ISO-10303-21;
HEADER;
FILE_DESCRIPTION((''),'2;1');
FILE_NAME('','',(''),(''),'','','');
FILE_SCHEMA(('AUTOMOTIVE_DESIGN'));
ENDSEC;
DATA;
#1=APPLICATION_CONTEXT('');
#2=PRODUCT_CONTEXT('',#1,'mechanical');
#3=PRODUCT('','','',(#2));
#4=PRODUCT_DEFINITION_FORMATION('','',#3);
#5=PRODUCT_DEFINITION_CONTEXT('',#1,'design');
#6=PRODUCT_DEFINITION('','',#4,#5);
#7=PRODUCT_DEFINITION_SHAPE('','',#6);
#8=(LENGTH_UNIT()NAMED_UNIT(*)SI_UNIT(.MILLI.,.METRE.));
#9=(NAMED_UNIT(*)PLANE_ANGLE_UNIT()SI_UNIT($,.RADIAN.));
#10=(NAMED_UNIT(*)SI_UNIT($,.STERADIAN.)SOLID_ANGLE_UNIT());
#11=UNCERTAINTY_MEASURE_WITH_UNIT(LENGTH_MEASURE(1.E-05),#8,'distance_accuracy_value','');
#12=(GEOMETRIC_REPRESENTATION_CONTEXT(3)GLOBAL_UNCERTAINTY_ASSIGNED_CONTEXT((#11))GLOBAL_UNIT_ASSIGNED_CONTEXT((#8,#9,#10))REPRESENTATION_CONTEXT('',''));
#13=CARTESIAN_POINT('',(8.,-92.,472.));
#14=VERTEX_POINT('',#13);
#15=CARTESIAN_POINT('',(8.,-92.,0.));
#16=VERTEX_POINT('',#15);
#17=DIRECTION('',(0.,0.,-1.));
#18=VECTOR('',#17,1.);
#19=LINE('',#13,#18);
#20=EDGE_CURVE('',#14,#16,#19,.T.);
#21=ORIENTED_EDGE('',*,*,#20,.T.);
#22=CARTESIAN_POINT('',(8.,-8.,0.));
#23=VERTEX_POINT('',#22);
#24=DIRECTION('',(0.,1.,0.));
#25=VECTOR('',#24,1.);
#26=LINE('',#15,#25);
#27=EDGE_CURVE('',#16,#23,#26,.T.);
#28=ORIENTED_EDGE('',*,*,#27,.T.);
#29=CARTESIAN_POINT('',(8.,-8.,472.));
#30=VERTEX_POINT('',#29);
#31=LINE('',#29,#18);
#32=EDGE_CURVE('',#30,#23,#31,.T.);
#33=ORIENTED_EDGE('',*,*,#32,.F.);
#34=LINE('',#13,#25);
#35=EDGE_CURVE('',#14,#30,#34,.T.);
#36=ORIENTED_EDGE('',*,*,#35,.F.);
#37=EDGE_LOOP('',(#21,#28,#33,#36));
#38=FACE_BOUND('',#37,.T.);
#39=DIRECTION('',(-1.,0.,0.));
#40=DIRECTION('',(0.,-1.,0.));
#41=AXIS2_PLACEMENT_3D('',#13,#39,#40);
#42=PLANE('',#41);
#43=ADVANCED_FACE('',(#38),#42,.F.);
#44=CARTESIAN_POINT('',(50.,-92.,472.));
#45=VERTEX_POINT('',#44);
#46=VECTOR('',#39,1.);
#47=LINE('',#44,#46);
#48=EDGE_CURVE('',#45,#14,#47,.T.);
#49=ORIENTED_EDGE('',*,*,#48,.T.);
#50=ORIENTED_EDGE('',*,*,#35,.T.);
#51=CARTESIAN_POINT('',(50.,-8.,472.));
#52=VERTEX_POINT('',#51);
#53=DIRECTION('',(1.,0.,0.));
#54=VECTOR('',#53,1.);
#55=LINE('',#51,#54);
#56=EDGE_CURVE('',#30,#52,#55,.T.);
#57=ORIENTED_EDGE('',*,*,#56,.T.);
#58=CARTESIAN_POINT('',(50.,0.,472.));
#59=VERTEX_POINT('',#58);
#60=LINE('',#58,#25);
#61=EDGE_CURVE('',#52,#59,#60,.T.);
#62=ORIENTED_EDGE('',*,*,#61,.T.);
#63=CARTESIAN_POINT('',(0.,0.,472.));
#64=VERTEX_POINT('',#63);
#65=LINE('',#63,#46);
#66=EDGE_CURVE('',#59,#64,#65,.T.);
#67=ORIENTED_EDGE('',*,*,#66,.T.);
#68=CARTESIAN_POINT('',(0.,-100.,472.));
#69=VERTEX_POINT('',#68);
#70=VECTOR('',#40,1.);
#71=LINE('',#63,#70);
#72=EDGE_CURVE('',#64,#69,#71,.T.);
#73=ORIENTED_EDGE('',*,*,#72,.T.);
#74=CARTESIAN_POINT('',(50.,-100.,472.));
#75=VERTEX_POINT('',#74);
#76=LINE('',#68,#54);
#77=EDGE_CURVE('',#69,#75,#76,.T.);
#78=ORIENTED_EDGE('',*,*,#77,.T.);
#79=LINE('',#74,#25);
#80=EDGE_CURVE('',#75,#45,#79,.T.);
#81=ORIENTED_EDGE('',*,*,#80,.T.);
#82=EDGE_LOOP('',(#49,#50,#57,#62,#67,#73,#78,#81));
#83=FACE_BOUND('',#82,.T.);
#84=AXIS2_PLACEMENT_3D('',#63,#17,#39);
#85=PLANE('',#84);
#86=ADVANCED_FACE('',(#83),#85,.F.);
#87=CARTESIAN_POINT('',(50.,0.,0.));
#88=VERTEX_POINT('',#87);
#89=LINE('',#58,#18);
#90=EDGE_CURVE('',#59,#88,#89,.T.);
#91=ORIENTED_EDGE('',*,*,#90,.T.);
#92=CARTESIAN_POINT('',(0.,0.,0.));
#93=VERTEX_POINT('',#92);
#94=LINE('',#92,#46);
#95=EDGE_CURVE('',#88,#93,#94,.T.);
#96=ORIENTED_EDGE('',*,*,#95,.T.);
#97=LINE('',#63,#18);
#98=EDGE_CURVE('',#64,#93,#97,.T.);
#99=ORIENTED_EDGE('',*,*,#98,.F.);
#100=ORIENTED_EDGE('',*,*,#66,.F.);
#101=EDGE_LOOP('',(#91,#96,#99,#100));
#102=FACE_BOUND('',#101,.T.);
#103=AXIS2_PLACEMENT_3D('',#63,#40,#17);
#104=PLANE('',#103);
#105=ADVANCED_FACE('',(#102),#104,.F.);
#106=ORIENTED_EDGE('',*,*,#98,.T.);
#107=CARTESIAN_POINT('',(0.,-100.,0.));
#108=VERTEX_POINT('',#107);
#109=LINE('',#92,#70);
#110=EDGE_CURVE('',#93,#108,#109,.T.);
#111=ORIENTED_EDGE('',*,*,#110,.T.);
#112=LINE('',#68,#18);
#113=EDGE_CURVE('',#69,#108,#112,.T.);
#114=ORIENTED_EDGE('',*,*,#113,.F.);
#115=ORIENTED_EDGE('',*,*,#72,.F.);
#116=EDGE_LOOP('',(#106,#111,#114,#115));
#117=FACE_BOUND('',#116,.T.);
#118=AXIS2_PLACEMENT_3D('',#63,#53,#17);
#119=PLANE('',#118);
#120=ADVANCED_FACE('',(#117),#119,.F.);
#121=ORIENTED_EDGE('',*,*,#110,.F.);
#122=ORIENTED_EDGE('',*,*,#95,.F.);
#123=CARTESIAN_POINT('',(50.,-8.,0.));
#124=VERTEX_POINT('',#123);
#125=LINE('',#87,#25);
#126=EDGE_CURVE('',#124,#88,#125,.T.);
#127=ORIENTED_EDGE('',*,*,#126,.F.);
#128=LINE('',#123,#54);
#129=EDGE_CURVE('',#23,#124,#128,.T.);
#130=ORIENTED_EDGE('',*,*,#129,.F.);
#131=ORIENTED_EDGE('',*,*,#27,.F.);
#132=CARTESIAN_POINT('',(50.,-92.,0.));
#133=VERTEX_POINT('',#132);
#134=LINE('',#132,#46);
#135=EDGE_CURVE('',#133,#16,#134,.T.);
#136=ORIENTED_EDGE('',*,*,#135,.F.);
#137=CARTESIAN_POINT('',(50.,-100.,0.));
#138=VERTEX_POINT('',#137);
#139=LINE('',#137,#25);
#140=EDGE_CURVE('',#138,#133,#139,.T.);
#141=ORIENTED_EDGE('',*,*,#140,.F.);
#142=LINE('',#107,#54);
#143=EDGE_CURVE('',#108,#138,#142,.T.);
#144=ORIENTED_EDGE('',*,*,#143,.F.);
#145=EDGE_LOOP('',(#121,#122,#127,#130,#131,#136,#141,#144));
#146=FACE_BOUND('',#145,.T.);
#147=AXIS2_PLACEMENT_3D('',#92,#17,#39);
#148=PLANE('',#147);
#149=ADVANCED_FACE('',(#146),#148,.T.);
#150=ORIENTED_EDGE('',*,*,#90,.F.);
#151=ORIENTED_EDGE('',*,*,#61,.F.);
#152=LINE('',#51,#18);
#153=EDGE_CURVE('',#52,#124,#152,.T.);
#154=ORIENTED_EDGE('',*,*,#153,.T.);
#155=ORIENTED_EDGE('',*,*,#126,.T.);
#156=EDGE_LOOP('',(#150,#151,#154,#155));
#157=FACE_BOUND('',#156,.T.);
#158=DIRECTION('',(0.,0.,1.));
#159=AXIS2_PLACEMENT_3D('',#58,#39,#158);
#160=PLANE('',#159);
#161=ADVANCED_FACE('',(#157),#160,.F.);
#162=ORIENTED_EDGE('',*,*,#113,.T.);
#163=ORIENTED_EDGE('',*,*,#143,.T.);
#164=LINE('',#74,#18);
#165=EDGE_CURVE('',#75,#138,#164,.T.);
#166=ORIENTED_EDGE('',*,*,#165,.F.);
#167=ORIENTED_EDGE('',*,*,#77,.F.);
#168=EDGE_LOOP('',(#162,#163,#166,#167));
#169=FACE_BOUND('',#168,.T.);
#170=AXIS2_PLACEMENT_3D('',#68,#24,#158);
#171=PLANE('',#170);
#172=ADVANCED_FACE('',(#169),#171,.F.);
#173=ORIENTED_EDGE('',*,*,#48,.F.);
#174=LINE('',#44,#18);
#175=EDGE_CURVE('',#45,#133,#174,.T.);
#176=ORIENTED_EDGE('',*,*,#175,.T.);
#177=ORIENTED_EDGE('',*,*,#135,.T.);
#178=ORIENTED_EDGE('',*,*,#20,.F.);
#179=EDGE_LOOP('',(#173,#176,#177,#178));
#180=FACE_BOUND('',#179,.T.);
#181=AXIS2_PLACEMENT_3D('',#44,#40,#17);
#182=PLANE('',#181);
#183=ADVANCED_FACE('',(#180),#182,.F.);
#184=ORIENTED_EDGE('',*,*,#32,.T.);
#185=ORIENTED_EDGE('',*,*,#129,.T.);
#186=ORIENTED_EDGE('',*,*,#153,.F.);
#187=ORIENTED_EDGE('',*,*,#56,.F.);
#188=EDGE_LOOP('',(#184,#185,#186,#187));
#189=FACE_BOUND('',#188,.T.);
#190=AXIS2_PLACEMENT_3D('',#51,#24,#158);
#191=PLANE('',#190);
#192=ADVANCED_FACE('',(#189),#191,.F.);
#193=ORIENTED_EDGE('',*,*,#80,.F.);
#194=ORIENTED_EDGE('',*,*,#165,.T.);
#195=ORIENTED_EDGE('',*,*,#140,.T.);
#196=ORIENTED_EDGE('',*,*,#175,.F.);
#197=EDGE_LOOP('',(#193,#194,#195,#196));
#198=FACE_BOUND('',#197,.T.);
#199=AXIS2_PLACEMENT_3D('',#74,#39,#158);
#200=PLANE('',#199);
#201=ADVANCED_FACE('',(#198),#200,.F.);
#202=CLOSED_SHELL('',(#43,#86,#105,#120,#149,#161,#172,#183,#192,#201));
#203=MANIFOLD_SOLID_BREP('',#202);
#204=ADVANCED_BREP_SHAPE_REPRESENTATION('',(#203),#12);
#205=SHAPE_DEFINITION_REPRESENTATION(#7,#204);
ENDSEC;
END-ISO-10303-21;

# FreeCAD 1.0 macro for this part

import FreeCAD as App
import Part
import Sketcher

V = App.Vector
Q = App.Units.Quantity


def add_polygon(sketch, points):
    """Adds a closed chain of lines whose ends are joined by coincident constraints."""
    first, n = sketch.GeometryCount, len(points)
    for a, b in zip(points, points[1:] + points[:1]):
        sketch.addGeometry(Part.LineSegment(App.Vector(*a, 0), App.Vector(*b, 0)), False)
    for i in range(n):
        sketch.addConstraint(Sketcher.Constraint("Coincident", first + i, 2, first + (i + 1) % n, 1))

doc = App.newDocument("Part")
body = doc.addObject("PartDesign::Body", "Body")

sketch1 = doc.addObject("Sketcher::SketchObject", "Sketch")
body.addObject(sketch1)
sketch1.AttachmentSupport = (doc.XY_Plane, [""])
sketch1.MapMode = "FlatFace"
add_polygon(sketch1, [(0, 0), (0, -100), (50, -100), (50, -92), (8, -92), (8, -8), (50, -8), (50, 0)])
sketch1.addConstraint([
    Sketcher.Constraint("Vertical", 0),
    Sketcher.Constraint("Horizontal", 1),
    Sketcher.Constraint("Vertical", 2),
    Sketcher.Constraint("Horizontal", 3),
    Sketcher.Constraint("Vertical", 4),
    Sketcher.Constraint("Horizontal", 5),
    Sketcher.Constraint("Vertical", 6),
    Sketcher.Constraint("Horizontal", 7),
    Sketcher.Constraint("Coincident", 7, 2, -1, 1),
    Sketcher.Constraint("Vertical", 2, 2, 5, 2),
    Sketcher.Constraint("Equal", 2, 6),
    Sketcher.Constraint("DistanceX", 1, 1, 1, 2, Q("50 mm")),
    Sketcher.Constraint("DistanceX", 3, 2, 3, 1, Q("42 mm")),
    Sketcher.Constraint("DistanceY", 0, 2, 0, 1, Q("100 mm")),
    Sketcher.Constraint("DistanceY", 2, 1, 2, 2, Q("8 mm")),
])
pad1 = doc.addObject("PartDesign::Pad", "Pad")
body.addObject(pad1)
pad1.Profile = sketch1
pad1.Length = 472

doc.recompute()
